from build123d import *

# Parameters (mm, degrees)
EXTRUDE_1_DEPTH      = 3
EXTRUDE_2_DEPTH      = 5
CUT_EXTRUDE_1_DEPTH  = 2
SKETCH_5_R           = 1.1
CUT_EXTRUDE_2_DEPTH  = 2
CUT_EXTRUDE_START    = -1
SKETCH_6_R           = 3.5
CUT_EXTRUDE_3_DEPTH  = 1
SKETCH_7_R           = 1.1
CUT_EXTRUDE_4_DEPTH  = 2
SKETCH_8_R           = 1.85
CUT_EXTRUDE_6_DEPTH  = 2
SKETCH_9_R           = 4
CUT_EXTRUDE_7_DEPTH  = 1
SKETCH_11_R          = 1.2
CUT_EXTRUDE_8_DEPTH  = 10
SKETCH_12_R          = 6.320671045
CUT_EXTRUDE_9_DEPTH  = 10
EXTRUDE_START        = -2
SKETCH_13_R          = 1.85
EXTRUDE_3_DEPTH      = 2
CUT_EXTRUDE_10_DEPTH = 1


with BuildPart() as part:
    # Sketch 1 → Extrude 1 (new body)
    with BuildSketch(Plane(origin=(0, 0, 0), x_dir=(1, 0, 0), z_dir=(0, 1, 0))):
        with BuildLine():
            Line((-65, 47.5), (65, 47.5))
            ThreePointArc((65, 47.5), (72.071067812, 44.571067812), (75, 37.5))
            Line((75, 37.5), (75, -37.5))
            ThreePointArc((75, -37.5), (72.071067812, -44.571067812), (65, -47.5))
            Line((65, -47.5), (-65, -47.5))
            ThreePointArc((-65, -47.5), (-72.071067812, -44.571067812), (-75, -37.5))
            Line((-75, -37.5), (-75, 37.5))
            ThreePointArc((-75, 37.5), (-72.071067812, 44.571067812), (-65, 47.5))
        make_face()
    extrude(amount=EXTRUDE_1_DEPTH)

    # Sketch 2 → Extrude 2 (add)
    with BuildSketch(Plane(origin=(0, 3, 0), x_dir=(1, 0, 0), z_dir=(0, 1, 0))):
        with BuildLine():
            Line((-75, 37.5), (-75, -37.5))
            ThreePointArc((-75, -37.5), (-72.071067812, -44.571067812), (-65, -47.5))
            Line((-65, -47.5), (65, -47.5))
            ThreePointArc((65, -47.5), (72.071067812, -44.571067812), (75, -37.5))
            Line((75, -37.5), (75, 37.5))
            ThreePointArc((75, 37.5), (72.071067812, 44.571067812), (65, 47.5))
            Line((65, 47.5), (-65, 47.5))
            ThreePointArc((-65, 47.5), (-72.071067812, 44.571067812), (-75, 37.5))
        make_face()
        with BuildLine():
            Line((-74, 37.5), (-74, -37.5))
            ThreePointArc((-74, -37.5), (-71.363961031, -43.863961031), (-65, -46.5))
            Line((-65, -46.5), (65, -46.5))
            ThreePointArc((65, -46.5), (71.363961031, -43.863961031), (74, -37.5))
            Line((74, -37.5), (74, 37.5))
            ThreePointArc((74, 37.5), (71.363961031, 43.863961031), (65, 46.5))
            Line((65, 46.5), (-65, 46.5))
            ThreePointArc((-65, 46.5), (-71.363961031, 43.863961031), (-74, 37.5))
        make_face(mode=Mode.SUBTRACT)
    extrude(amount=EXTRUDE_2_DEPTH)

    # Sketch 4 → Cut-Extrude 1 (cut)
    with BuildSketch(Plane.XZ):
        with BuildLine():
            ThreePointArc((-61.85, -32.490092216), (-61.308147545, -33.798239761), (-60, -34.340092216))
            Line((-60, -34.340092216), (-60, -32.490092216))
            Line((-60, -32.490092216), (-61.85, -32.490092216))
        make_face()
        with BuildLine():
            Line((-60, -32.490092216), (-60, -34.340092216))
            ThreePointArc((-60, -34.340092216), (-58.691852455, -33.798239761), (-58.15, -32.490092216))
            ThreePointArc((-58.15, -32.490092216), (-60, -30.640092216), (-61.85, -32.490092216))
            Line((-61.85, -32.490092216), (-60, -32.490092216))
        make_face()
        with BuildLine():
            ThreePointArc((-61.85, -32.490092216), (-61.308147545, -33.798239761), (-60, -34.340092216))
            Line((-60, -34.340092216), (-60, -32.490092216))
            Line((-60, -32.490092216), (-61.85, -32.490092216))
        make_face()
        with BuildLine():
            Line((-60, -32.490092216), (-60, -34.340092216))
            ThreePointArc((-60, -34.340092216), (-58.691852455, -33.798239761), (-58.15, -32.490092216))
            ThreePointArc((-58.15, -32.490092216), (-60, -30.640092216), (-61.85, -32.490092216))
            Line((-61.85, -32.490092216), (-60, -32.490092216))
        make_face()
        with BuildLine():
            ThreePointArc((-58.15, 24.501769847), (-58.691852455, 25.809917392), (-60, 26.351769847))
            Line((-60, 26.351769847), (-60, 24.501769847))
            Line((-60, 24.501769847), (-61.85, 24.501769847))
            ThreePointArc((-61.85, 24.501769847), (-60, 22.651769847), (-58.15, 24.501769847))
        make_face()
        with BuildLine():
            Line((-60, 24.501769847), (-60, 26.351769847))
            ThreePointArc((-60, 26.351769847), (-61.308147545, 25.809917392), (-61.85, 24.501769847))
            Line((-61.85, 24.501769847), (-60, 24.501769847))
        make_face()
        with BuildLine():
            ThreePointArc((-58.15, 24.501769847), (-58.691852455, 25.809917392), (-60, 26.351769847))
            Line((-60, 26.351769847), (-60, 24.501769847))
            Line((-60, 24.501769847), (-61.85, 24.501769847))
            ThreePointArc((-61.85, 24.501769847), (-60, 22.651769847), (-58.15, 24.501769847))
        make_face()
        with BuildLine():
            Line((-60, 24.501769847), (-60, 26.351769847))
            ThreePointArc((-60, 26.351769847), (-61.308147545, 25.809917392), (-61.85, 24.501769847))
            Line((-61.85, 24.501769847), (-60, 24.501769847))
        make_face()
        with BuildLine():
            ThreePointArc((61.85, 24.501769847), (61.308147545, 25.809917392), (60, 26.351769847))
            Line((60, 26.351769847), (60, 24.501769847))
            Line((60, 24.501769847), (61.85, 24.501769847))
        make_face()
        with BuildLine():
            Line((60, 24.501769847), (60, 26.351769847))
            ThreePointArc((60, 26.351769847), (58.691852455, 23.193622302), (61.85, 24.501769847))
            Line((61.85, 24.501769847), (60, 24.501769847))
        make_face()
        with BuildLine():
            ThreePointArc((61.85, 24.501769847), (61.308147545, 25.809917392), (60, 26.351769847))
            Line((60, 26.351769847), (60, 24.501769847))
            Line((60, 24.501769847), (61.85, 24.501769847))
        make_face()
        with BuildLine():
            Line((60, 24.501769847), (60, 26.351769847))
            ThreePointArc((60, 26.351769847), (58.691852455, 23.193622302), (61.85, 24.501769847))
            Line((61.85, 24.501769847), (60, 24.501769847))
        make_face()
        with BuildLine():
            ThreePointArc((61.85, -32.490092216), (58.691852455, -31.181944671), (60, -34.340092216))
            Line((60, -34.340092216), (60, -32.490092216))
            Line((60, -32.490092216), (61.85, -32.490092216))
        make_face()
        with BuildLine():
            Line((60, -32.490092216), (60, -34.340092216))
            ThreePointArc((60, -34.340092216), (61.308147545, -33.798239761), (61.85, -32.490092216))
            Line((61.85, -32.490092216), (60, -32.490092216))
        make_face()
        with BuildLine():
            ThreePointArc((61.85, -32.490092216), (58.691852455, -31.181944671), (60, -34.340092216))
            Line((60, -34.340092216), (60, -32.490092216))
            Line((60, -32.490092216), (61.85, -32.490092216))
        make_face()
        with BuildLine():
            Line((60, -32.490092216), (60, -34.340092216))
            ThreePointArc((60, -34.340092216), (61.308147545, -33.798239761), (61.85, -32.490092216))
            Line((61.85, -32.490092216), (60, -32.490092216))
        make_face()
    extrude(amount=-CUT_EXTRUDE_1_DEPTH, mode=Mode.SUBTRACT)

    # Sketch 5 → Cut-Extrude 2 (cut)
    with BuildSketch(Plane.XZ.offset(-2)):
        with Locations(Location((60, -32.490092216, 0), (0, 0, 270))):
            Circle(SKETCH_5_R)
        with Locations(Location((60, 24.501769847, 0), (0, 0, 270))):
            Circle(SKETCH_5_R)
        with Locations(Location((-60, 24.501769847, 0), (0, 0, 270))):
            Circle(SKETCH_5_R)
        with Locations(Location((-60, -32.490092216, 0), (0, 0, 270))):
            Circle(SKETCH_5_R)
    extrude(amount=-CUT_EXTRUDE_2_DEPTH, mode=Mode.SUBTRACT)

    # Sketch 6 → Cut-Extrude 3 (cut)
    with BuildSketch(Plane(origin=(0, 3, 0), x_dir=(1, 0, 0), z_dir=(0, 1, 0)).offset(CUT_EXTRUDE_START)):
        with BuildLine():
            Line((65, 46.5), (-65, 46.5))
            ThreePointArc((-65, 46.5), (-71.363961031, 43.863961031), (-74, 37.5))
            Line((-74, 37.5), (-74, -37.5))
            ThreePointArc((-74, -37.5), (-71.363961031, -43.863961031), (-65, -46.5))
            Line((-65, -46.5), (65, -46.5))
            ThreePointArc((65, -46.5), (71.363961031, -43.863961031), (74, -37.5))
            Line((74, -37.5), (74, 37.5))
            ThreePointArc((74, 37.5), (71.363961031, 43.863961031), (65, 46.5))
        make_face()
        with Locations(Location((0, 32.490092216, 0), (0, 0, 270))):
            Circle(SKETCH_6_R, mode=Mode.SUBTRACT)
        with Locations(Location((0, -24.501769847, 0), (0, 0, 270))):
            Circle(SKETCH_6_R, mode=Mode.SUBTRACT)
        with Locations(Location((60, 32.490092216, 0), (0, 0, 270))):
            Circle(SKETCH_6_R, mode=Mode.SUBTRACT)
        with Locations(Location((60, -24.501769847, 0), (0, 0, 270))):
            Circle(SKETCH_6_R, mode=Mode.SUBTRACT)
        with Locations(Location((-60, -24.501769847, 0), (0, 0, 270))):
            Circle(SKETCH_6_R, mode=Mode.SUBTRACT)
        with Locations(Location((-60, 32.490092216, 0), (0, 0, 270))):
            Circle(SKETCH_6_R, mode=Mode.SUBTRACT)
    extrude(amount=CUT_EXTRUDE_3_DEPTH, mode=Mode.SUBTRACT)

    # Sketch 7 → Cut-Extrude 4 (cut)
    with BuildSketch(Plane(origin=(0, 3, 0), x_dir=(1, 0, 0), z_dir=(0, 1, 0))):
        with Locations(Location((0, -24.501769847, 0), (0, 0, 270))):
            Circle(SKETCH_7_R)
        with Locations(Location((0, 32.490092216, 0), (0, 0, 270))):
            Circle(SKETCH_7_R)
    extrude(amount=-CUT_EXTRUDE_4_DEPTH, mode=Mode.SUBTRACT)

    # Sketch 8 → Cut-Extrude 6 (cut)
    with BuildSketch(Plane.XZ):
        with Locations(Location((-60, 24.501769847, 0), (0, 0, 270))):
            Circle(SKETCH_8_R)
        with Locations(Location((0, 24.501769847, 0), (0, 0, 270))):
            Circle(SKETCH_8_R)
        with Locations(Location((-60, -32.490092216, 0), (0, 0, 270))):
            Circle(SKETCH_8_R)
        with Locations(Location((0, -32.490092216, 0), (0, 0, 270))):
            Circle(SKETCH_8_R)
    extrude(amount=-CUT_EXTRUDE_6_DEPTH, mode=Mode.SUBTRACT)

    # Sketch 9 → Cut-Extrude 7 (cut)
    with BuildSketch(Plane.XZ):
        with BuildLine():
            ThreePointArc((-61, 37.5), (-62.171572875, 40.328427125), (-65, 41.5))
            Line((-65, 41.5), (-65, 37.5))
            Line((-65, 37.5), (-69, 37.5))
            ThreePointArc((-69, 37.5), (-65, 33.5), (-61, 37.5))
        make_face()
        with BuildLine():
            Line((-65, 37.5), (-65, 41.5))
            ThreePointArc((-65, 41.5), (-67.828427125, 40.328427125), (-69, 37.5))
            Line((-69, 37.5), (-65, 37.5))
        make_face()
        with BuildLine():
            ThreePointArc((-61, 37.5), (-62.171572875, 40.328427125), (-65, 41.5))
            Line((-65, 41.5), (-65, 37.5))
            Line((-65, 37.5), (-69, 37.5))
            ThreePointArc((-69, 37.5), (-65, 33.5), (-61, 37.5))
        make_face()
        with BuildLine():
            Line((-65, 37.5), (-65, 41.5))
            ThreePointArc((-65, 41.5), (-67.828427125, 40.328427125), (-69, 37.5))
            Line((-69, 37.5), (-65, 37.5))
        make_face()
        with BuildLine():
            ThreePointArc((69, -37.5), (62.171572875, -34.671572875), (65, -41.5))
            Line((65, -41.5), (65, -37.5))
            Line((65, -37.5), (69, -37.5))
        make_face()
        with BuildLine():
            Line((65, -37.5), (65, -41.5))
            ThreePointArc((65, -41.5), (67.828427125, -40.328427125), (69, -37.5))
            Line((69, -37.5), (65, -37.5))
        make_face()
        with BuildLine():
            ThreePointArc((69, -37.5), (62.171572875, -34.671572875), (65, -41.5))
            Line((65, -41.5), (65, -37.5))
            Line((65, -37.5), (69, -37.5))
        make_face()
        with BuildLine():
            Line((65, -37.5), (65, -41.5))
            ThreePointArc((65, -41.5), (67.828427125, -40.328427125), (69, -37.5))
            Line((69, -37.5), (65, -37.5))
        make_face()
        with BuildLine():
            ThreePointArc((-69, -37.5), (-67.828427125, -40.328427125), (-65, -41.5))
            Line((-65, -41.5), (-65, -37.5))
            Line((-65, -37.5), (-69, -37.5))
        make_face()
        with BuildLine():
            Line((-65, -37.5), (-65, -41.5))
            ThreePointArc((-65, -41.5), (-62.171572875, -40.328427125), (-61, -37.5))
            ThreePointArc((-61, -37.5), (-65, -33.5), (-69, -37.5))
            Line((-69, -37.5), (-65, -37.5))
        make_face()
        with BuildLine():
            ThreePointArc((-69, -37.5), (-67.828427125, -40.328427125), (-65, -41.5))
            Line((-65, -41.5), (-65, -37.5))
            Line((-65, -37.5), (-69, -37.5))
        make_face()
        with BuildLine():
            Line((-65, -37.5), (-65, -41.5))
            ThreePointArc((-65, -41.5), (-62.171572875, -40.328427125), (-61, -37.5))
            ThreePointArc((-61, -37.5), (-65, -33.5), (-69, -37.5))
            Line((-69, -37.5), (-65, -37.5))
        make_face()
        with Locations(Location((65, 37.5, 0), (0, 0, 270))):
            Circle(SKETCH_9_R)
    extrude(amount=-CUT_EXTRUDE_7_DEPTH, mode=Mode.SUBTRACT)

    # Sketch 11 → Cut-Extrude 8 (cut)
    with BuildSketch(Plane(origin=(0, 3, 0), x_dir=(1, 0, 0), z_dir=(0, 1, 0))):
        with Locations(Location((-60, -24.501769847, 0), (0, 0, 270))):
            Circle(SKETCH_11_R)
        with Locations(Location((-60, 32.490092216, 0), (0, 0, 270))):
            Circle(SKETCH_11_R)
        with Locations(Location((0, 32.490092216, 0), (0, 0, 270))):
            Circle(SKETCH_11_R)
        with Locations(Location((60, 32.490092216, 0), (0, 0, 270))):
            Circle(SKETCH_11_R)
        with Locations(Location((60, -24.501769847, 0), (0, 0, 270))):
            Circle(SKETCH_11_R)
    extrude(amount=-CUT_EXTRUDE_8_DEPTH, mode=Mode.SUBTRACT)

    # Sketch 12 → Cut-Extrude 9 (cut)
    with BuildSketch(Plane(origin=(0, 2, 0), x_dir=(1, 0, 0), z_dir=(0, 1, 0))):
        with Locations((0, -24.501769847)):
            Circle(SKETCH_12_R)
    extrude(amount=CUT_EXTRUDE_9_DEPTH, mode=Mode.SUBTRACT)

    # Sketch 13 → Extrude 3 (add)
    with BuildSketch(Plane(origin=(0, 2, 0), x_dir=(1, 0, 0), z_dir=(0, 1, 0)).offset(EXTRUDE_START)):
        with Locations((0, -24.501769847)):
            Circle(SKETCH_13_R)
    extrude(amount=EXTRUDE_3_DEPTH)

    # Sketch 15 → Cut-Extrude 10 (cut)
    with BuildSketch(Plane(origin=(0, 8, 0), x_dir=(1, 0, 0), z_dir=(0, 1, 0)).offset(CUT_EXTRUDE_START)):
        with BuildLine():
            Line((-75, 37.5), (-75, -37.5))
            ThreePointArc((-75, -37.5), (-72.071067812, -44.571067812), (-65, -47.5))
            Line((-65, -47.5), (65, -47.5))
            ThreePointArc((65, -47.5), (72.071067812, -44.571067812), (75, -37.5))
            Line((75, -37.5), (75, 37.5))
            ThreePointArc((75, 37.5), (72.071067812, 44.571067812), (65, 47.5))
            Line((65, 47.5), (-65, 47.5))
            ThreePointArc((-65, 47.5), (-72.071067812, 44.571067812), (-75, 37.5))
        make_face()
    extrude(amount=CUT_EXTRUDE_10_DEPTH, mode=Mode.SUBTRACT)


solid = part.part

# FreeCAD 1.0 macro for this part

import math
import FreeCAD as App
import Part
import Sketcher
from FreeCAD import Vector
Q = App.Units.Quantity

doc = App.newDocument("Part")
params = doc.addObject("Spreadsheet::Sheet", "Params")
for row, (alias, value) in enumerate([
    ("sketch1_radius", "10 mm"),
    ("sketch1_width", "130 mm"),
    ("sketch1_height", "75 mm"),
    ("pad1_length", "3 mm"),
    ("sketch2_radius", "10 mm"),
    ("sketch2_radius2", "9 mm"),
    ("sketch2_width", "130 mm"),
    ("sketch2_height", "75 mm"),
    ("pad2_length", "5 mm"),
    ("sketch3_radius", "1.85 mm"),
    ("pocket1_length", "2 mm"),
    ("sketch4_diameter", "2.2 mm"),
    ("pocket2_length", "2 mm"),
    ("sketch5_diameter", "7 mm"),
    ("sketch5_radius", "9 mm"),
    ("sketch5_width", "130 mm"),
    ("sketch5_height", "75 mm"),
    ("pocket3_length", "1 mm"),
    ("sketch6_diameter", "2.2 mm"),
    ("pocket4_length", "2 mm"),
    ("sketch7_diameter", "3.7 mm"),
    ("pocket5_length", "2 mm"),
    ("sketch8_diameter", "8 mm"),
    ("pocket6_length", "1 mm"),
    ("sketch9_diameter", "2.4 mm"),
    ("pocket7_length", "10 mm"),
    ("pocket8_length", "10 mm"),
    ("sketch11_diameter", "3.7 mm"),
    ("pad3_length", "2 mm"),
    ("sketch12_radius", "10 mm"),
    ("sketch12_width", "130 mm"),
    ("sketch12_height", "75 mm"),
    ("pocket9_length", "1 mm"),
], start=1):
    params.set(f"A{row}", alias)
    params.set(f"B{row}", "=" + value)
    params.setAlias(f"B{row}", alias)

body = doc.addObject("PartDesign::Body", "Body")

# Sketch on XZ plane
sketch1 = body.newObject("Sketcher::SketchObject", "Sketch")
sketch1.AttachmentSupport = (doc.getObject("XZ_Plane"), [""])
sketch1.MapMode = "FlatFace"
sketch1.addGeometry(Part.LineSegment(Vector(65, -47.5, 0), Vector(-65, -47.5, 0)), False)
sketch1.addGeometry(Part.ArcOfCircle(Part.Circle(Vector(-65, -37.5, 0), Vector(0, 0, 1), 10), math.radians(180), math.radians(270)), False)
sketch1.addGeometry(Part.LineSegment(Vector(-75, -37.5, 0), Vector(-75, 37.5, 0)), False)
sketch1.addGeometry(Part.ArcOfCircle(Part.Circle(Vector(-65, 37.5, 0), Vector(0, 0, 1), 10), math.radians(90), math.radians(180)), False)
sketch1.addGeometry(Part.LineSegment(Vector(-65, 47.5, 0), Vector(65, 47.5, 0)), False)
sketch1.addGeometry(Part.ArcOfCircle(Part.Circle(Vector(65, 37.5, 0), Vector(0, 0, 1), 10), math.radians(0), math.radians(90)), False)
sketch1.addGeometry(Part.LineSegment(Vector(75, 37.5, 0), Vector(75, -37.5, 0)), False)
sketch1.addGeometry(Part.ArcOfCircle(Part.Circle(Vector(65, -37.5, 0), Vector(0, 0, 1), 10), math.radians(-90), math.radians(0)), False)
sketch1.addConstraint(Sketcher.Constraint("Tangent", 0, 2, 1, 2))
sketch1.addConstraint(Sketcher.Constraint("Tangent", 1, 1, 2, 1))
sketch1.addConstraint(Sketcher.Constraint("Tangent", 2, 2, 3, 2))
sketch1.addConstraint(Sketcher.Constraint("Tangent", 3, 1, 4, 1))
sketch1.addConstraint(Sketcher.Constraint("Tangent", 4, 2, 5, 2))
sketch1.addConstraint(Sketcher.Constraint("Tangent", 5, 1, 6, 1))
sketch1.addConstraint(Sketcher.Constraint("Tangent", 6, 2, 7, 2))
sketch1.addConstraint(Sketcher.Constraint("Tangent", 7, 1, 0, 1))
sketch1.addConstraint(Sketcher.Constraint("Horizontal", 0))
sketch1.addConstraint(Sketcher.Constraint("Vertical", 2))
sketch1.addConstraint(Sketcher.Constraint("Horizontal", 4))
sketch1.addConstraint(Sketcher.Constraint("Vertical", 6))
sketch1.addConstraint(Sketcher.Constraint("Equal", 1, 3))
sketch1.addConstraint(Sketcher.Constraint("Equal", 3, 5))
sketch1.addConstraint(Sketcher.Constraint("Equal", 5, 7))
sketch1.addConstraint(Sketcher.Constraint("Symmetric", 1, 3, 5, 3, -1, 1))
sketch1.addConstraint(Sketcher.Constraint("Radius", 1, Q("10 mm")))
sketch1.addConstraint(Sketcher.Constraint("DistanceX", 0, 2, 0, 1, Q("130 mm")))
sketch1.addConstraint(Sketcher.Constraint("DistanceY", 2, 1, 2, 2, Q("75 mm")))
sketch1.setExpression("Constraints[16]", "Params.sketch1_radius")
sketch1.setExpression("Constraints[17]", "Params.sketch1_width")
sketch1.setExpression("Constraints[18]", "Params.sketch1_height")
pad1 = body.newObject("PartDesign::Pad", "Pad")
pad1.Profile = sketch1
pad1.setExpression("Length", "Params.pad1_length")
pad1.Reversed = True

# Sketch on XZ plane
sketch2 = body.newObject("Sketcher::SketchObject", "Sketch001")
sketch2.AttachmentSupport = (doc.getObject("XZ_Plane"), [""])
sketch2.MapMode = "FlatFace"
sketch2.AttachmentOffset = App.Placement(Vector(0, 0, -3), App.Rotation())
sketch2.addGeometry(Part.LineSegment(Vector(-75, -37.5, 0), Vector(-75, 37.5, 0)), False)
sketch2.addGeometry(Part.ArcOfCircle(Part.Circle(Vector(-65, 37.5, 0), Vector(0, 0, 1), 10), math.radians(90), math.radians(180)), False)
sketch2.addGeometry(Part.LineSegment(Vector(-65, 47.5, 0), Vector(65, 47.5, 0)), False)
sketch2.addGeometry(Part.ArcOfCircle(Part.Circle(Vector(65, 37.5, 0), Vector(0, 0, 1), 10), math.radians(0), math.radians(90)), False)
sketch2.addGeometry(Part.LineSegment(Vector(75, 37.5, 0), Vector(75, -37.5, 0)), False)
sketch2.addGeometry(Part.ArcOfCircle(Part.Circle(Vector(65, -37.5, 0), Vector(0, 0, 1), 10), math.radians(-90), math.radians(0)), False)
sketch2.addGeometry(Part.LineSegment(Vector(65, -47.5, 0), Vector(-65, -47.5, 0)), False)
sketch2.addGeometry(Part.ArcOfCircle(Part.Circle(Vector(-65, -37.5, 0), Vector(0, 0, 1), 10), math.radians(180), math.radians(270)), False)
sketch2.addGeometry(Part.LineSegment(Vector(-74, 37.5, 0), Vector(-74, -37.5, 0)), False)
sketch2.addGeometry(Part.ArcOfCircle(Part.Circle(Vector(-65, -37.5, 0), Vector(0, 0, 1), 9), math.radians(180), math.radians(270)), False)
sketch2.addGeometry(Part.LineSegment(Vector(-65, -46.5, 0), Vector(65, -46.5, 0)), False)
sketch2.addGeometry(Part.ArcOfCircle(Part.Circle(Vector(65, -37.5, 0), Vector(0, 0, 1), 9), math.radians(-90), math.radians(0)), False)
sketch2.addGeometry(Part.LineSegment(Vector(74, -37.5, 0), Vector(74, 37.5, 0)), False)
sketch2.addGeometry(Part.ArcOfCircle(Part.Circle(Vector(65, 37.5, 0), Vector(0, 0, 1), 9), math.radians(0), math.radians(90)), False)
sketch2.addGeometry(Part.LineSegment(Vector(65, 46.5, 0), Vector(-65, 46.5, 0)), False)
sketch2.addGeometry(Part.ArcOfCircle(Part.Circle(Vector(-65, 37.5, 0), Vector(0, 0, 1), 9), math.radians(90), math.radians(180)), False)
sketch2.addConstraint(Sketcher.Constraint("Tangent", 0, 2, 1, 2))
sketch2.addConstraint(Sketcher.Constraint("Tangent", 1, 1, 2, 1))
sketch2.addConstraint(Sketcher.Constraint("Tangent", 2, 2, 3, 2))
sketch2.addConstraint(Sketcher.Constraint("Tangent", 3, 1, 4, 1))
sketch2.addConstraint(Sketcher.Constraint("Tangent", 4, 2, 5, 2))
sketch2.addConstraint(Sketcher.Constraint("Tangent", 5, 1, 6, 1))
sketch2.addConstraint(Sketcher.Constraint("Tangent", 6, 2, 7, 2))
sketch2.addConstraint(Sketcher.Constraint("Tangent", 7, 1, 0, 1))
sketch2.addConstraint(Sketcher.Constraint("Tangent", 8, 2, 9, 1))
sketch2.addConstraint(Sketcher.Constraint("Tangent", 9, 2, 10, 1))
sketch2.addConstraint(Sketcher.Constraint("Tangent", 10, 2, 11, 1))
sketch2.addConstraint(Sketcher.Constraint("Tangent", 11, 2, 12, 1))
sketch2.addConstraint(Sketcher.Constraint("Tangent", 12, 2, 13, 1))
sketch2.addConstraint(Sketcher.Constraint("Tangent", 13, 2, 14, 1))
sketch2.addConstraint(Sketcher.Constraint("Tangent", 14, 2, 15, 1))
sketch2.addConstraint(Sketcher.Constraint("Tangent", 15, 2, 8, 1))
sketch2.addConstraint(Sketcher.Constraint("Vertical", 0))
sketch2.addConstraint(Sketcher.Constraint("Horizontal", 2))
sketch2.addConstraint(Sketcher.Constraint("Vertical", 4))
sketch2.addConstraint(Sketcher.Constraint("Horizontal", 6))
sketch2.addConstraint(Sketcher.Constraint("Vertical", 8))
sketch2.addConstraint(Sketcher.Constraint("Horizontal", 10))
sketch2.addConstraint(Sketcher.Constraint("Vertical", 12))
sketch2.addConstraint(Sketcher.Constraint("Horizontal", 14))
sketch2.addConstraint(Sketcher.Constraint("Coincident", 9, 3, 7, 3))
sketch2.addConstraint(Sketcher.Constraint("Coincident", 11, 3, 5, 3))
sketch2.addConstraint(Sketcher.Constraint("Coincident", 13, 3, 3, 3))
sketch2.addConstraint(Sketcher.Constraint("Equal", 1, 3))
sketch2.addConstraint(Sketcher.Constraint("Equal", 3, 5))
sketch2.addConstraint(Sketcher.Constraint("Equal", 5, 7))
sketch2.addConstraint(Sketcher.Constraint("Equal", 13, 15))
sketch2.addConstraint(Sketcher.Constraint("Symmetric", 1, 3, 5, 3, -1, 1))
sketch2.addConstraint(Sketcher.Constraint("Radius", 1, Q("10 mm")))
sketch2.addConstraint(Sketcher.Constraint("Radius", 9, Q("9 mm")))
sketch2.addConstraint(Sketcher.Constraint("DistanceX", 2, 1, 2, 2, Q("130 mm")))
sketch2.addConstraint(Sketcher.Constraint("DistanceY", 0, 1, 0, 2, Q("75 mm")))
sketch2.setExpression("Constraints[32]", "Params.sketch2_radius")
sketch2.setExpression("Constraints[33]", "Params.sketch2_radius2")
sketch2.setExpression("Constraints[34]", "Params.sketch2_width")
sketch2.setExpression("Constraints[35]", "Params.sketch2_height")
pad2 = body.newObject("PartDesign::Pad", "Pad001")
pad2.Profile = sketch2
pad2.setExpression("Length", "Params.pad2_length")
pad2.Reversed = True

# Sketch on XZ plane
sketch3 = body.newObject("Sketcher::SketchObject", "Sketch002")
sketch3.AttachmentSupport = (doc.getObject("XZ_Plane"), [""])
sketch3.MapMode = "FlatFace"
sketch3.addGeometry(Part.ArcOfCircle(Part.Circle(Vector(-60, -32.490092, 0), Vector(0, 0, 1), 1.85), math.radians(-180), math.radians(-90)), False)
sketch3.addGeometry(Part.ArcOfCircle(Part.Circle(Vector(-60, -32.490092, 0), Vector(0, 0, 1), 1.85), math.radians(-90), math.radians(0)), False)
sketch3.addGeometry(Part.ArcOfCircle(Part.Circle(Vector(-60, -32.490092, 0), Vector(0, 0, 1), 1.85), math.radians(0), math.radians(180)), False)
sketch3.addGeometry(Part.ArcOfCircle(Part.Circle(Vector(-60, 24.50177, 0), Vector(0, 0, 1), 1.85), math.radians(0), math.radians(90)), False)
sketch3.addGeometry(Part.ArcOfCircle(Part.Circle(Vector(-60, 24.50177, 0), Vector(0, 0, 1), 1.85), math.radians(90), math.radians(180)), False)
sketch3.addGeometry(Part.ArcOfCircle(Part.Circle(Vector(-60, 24.50177, 0), Vector(0, 0, 1), 1.85), math.radians(180), math.radians(360)), False)
sketch3.addGeometry(Part.ArcOfCircle(Part.Circle(Vector(60, 24.50177, 0), Vector(0, 0, 1), 1.85), math.radians(0), math.radians(90)), False)
sketch3.addGeometry(Part.ArcOfCircle(Part.Circle(Vector(60, 24.50177, 0), Vector(0, 0, 1), 1.85), math.radians(90), math.radians(360)), False)
sketch3.addGeometry(Part.ArcOfCircle(Part.Circle(Vector(60, -32.490092, 0), Vector(0, 0, 1), 1.85), math.radians(0), math.radians(270)), False)
sketch3.addGeometry(Part.ArcOfCircle(Part.Circle(Vector(60, -32.490092, 0), Vector(0, 0, 1), 1.85), math.radians(-90), math.radians(0)), False)
sketch3.addConstraint(Sketcher.Constraint("Tangent", 0, 2, 1, 1))
sketch3.addConstraint(Sketcher.Constraint("Tangent", 1, 2, 2, 1))
sketch3.addConstraint(Sketcher.Constraint("Tangent", 2, 2, 0, 1))
sketch3.addConstraint(Sketcher.Constraint("Tangent", 3, 2, 4, 1))
sketch3.addConstraint(Sketcher.Constraint("Tangent", 4, 2, 5, 1))
sketch3.addConstraint(Sketcher.Constraint("Tangent", 5, 2, 3, 1))
sketch3.addConstraint(Sketcher.Constraint("Tangent", 6, 1, 7, 2))
sketch3.addConstraint(Sketcher.Constraint("Coincident", 7, 1, 6, 2))
sketch3.addConstraint(Sketcher.Constraint("Tangent", 8, 1, 9, 2))
sketch3.addConstraint(Sketcher.Constraint("Coincident", 9, 1, 8, 2))
sketch3.addConstraint(Sketcher.Constraint("Equal", 2, 3))
sketch3.addConstraint(Sketcher.Constraint("Equal", 5, 6))
sketch3.addConstraint(Sketcher.Constraint("Equal", 7, 8))
sketch3.addConstraint(Sketcher.Constraint("Symmetric", 3, 3, 6, 3, -2))
sketch3.addConstraint(Sketcher.Constraint("Symmetric", 0, 3, 8, 3, -2))
sketch3.addConstraint(Sketcher.Constraint("Horizontal", 9, 3, 1, 2))
sketch3.addConstraint(Sketcher.Constraint("Horizontal", 1, 2, 2, 2))
sketch3.addConstraint(Sketcher.Constraint("Horizontal", 7, 3, 4, 2))
sketch3.addConstraint(Sketcher.Constraint("Horizontal", 4, 2, 5, 2))
sketch3.addConstraint(Sketcher.Constraint("Horizontal", 5, 2, 6, 1))
sketch3.addConstraint(Sketcher.Constraint("Horizontal", 2, 2, 8, 1))
sketch3.addConstraint(Sketcher.Constraint("Vertical", 2, 3, 3, 3))
sketch3.addConstraint(Sketcher.Constraint("Vertical", 5, 3, 0, 2))
sketch3.addConstraint(Sketcher.Constraint("Vertical", 0, 2, 3, 2))
sketch3.addConstraint(Sketcher.Constraint("Vertical", 9, 3, 7, 1))
sketch3.addConstraint(Sketcher.Constraint("Vertical", 7, 1, 9, 1))
sketch3.addConstraint(Sketcher.Constraint("Radius", 0, Q("1.85 mm")))
sketch3.addConstraint(Sketcher.Constraint("DistanceX", 0, 3, -1, 1, Q("60 mm")))
sketch3.addConstraint(Sketcher.Constraint("DistanceY", -1, 1, 3, 3, Q("24.50177 mm")))
sketch3.addConstraint(Sketcher.Constraint("DistanceY", 0, 3, -1, 1, Q("32.490092 mm")))
sketch3.setExpression("Constraints[26]", "Params.sketch3_radius")
pocket1 = body.newObject("PartDesign::Pocket", "Pocket")
pocket1.Profile = sketch3
pocket1.setExpression("Length", "Params.pocket1_length")

# Sketch on XZ plane
sketch4 = body.newObject("Sketcher::SketchObject", "Sketch003")
sketch4.AttachmentSupport = (doc.getObject("XZ_Plane"), [""])
sketch4.MapMode = "FlatFace"
sketch4.AttachmentOffset = App.Placement(Vector(0, 0, -2), App.Rotation())
sketch4.addGeometry(Part.Circle(Vector(60, -32.490092, 0), Vector(0, 0, 1), 1.1), False)
sketch4.addGeometry(Part.Circle(Vector(60, 24.50177, 0), Vector(0, 0, 1), 1.1), False)
sketch4.addGeometry(Part.Circle(Vector(-60, 24.50177, 0), Vector(0, 0, 1), 1.1), False)
sketch4.addGeometry(Part.Circle(Vector(-60, -32.490092, 0), Vector(0, 0, 1), 1.1), False)
sketch4.addConstraint(Sketcher.Constraint("Equal", 0, 1))
sketch4.addConstraint(Sketcher.Constraint("Equal", 1, 2))
sketch4.addConstraint(Sketcher.Constraint("Equal", 2, 3))
sketch4.addConstraint(Sketcher.Constraint("Symmetric", 1, 3, 2, 3, -2))
sketch4.addConstraint(Sketcher.Constraint("Symmetric", 0, 3, 3, 3, -2))
sketch4.addConstraint(Sketcher.Constraint("Vertical", 0, 3, 1, 3))
sketch4.addConstraint(Sketcher.Constraint("Diameter", 0, Q("2.2 mm")))
sketch4.addConstraint(Sketcher.Constraint("DistanceX", -1, 1, 0, 3, Q("60 mm")))
sketch4.addConstraint(Sketcher.Constraint("DistanceY", -1, 1, 1, 3, Q("24.50177 mm")))
sketch4.addConstraint(Sketcher.Constraint("DistanceY", 0, 3, -1, 1, Q("32.490092 mm")))
sketch4.setExpression("Constraints[6]", "Params.sketch4_diameter")
pocket2 = body.newObject("PartDesign::Pocket", "Pocket001")
pocket2.Profile = sketch4
pocket2.setExpression("Length", "Params.pocket2_length")

# Sketch on XZ plane
sketch5 = body.newObject("Sketcher::SketchObject", "Sketch004")
sketch5.AttachmentSupport = (doc.getObject("XZ_Plane"), [""])
sketch5.MapMode = "FlatFace"
sketch5.AttachmentOffset = App.Placement(Vector(0, 0, -2), App.Rotation())
sketch5.addGeometry(Part.LineSegment(Vector(65, -46.5, 0), Vector(-65, -46.5, 0)), False)
sketch5.addGeometry(Part.ArcOfCircle(Part.Circle(Vector(-65, -37.5, 0), Vector(0, 0, 1), 9), math.radians(180), math.radians(270)), False)
sketch5.addGeometry(Part.LineSegment(Vector(-74, -37.5, 0), Vector(-74, 37.5, 0)), False)
sketch5.addGeometry(Part.ArcOfCircle(Part.Circle(Vector(-65, 37.5, 0), Vector(0, 0, 1), 9), math.radians(90), math.radians(180)), False)
sketch5.addGeometry(Part.LineSegment(Vector(-65, 46.5, 0), Vector(65, 46.5, 0)), False)
sketch5.addGeometry(Part.ArcOfCircle(Part.Circle(Vector(65, 37.5, 0), Vector(0, 0, 1), 9), math.radians(0), math.radians(90)), False)
sketch5.addGeometry(Part.LineSegment(Vector(74, 37.5, 0), Vector(74, -37.5, 0)), False)
sketch5.addGeometry(Part.ArcOfCircle(Part.Circle(Vector(65, -37.5, 0), Vector(0, 0, 1), 9), math.radians(-90), math.radians(0)), False)
sketch5.addGeometry(Part.Circle(Vector(-60, 24.50177, 0), Vector(0, 0, 1), 3.5), False)
sketch5.addGeometry(Part.Circle(Vector(0, 24.50177, 0), Vector(0, 0, 1), 3.5), False)
sketch5.addGeometry(Part.Circle(Vector(60, 24.50177, 0), Vector(0, 0, 1), 3.5), False)
sketch5.addGeometry(Part.Circle(Vector(-60, -32.490092, 0), Vector(0, 0, 1), 3.5), False)
sketch5.addGeometry(Part.Circle(Vector(0, -32.490092, 0), Vector(0, 0, 1), 3.5), False)
sketch5.addGeometry(Part.Circle(Vector(60, -32.490092, 0), Vector(0, 0, 1), 3.5), False)
sketch5.addConstraint(Sketcher.Constraint("Tangent", 0, 2, 1, 2))
sketch5.addConstraint(Sketcher.Constraint("Tangent", 1, 1, 2, 1))
sketch5.addConstraint(Sketcher.Constraint("Tangent", 2, 2, 3, 2))
sketch5.addConstraint(Sketcher.Constraint("Tangent", 3, 1, 4, 1))
sketch5.addConstraint(Sketcher.Constraint("Tangent", 4, 2, 5, 2))
sketch5.addConstraint(Sketcher.Constraint("Tangent", 5, 1, 6, 1))
sketch5.addConstraint(Sketcher.Constraint("Tangent", 6, 2, 7, 2))
sketch5.addConstraint(Sketcher.Constraint("Tangent", 7, 1, 0, 1))
sketch5.addConstraint(Sketcher.Constraint("Horizontal", 0))
sketch5.addConstraint(Sketcher.Constraint("Vertical", 2))
sketch5.addConstraint(Sketcher.Constraint("Horizontal", 4))
sketch5.addConstraint(Sketcher.Constraint("Vertical", 6))
sketch5.addConstraint(Sketcher.Constraint("Equal", 1, 3))
sketch5.addConstraint(Sketcher.Constraint("Equal", 3, 5))
sketch5.addConstraint(Sketcher.Constraint("Equal", 5, 7))
sketch5.addConstraint(Sketcher.Constraint("Equal", 8, 9))
sketch5.addConstraint(Sketcher.Constraint("Equal", 9, 10))
sketch5.addConstraint(Sketcher.Constraint("Equal", 10, 11))
sketch5.addConstraint(Sketcher.Constraint("Equal", 11, 12))
sketch5.addConstraint(Sketcher.Constraint("Equal", 12, 13))
sketch5.addConstraint(Sketcher.Constraint("Symmetric", 1, 3, 5, 3, -1, 1))
sketch5.addConstraint(Sketcher.Constraint("Symmetric", 8, 3, 10, 3, -2))
sketch5.addConstraint(Sketcher.Constraint("Symmetric", 11, 3, 13, 3, -2))
sketch5.addConstraint(Sketcher.Constraint("PointOnObject", 9, 3, -2))
sketch5.addConstraint(Sketcher.Constraint("PointOnObject", 12, 3, -2))
sketch5.addConstraint(Sketcher.Constraint("Horizontal", 8, 3, 9, 3))
sketch5.addConstraint(Sketcher.Constraint("Horizontal", 11, 3, 12, 3))
sketch5.addConstraint(Sketcher.Constraint("Vertical", 8, 3, 11, 3))
sketch5.addConstraint(Sketcher.Constraint("Diameter", 8, Q("7 mm")))
sketch5.addConstraint(Sketcher.Constraint("Radius", 1, Q("9 mm")))
sketch5.addConstraint(Sketcher.Constraint("DistanceX", 0, 2, 0, 1, Q("130 mm")))
sketch5.addConstraint(Sketcher.Constraint("DistanceY", 2, 1, 2, 2, Q("75 mm")))
sketch5.addConstraint(Sketcher.Constraint("DistanceX", 8, 3, -1, 1, Q("60 mm")))
sketch5.addConstraint(Sketcher.Constraint("DistanceY", -1, 1, 8, 3, Q("24.50177 mm")))
sketch5.addConstraint(Sketcher.Constraint("DistanceY", 11, 3, -1, 1, Q("32.490092 mm")))
sketch5.setExpression("Constraints[28]", "Params.sketch5_diameter")
sketch5.setExpression("Constraints[29]", "Params.sketch5_radius")
sketch5.setExpression("Constraints[30]", "Params.sketch5_width")
sketch5.setExpression("Constraints[31]", "Params.sketch5_height")
pocket3 = body.newObject("PartDesign::Pocket", "Pocket002")
pocket3.Profile = sketch5
pocket3.setExpression("Length", "Params.pocket3_length")

# Sketch on XZ plane
sketch6 = body.newObject("Sketcher::SketchObject", "Sketch005")
sketch6.AttachmentSupport = (doc.getObject("XZ_Plane"), [""])
sketch6.MapMode = "FlatFace"
sketch6.AttachmentOffset = App.Placement(Vector(0, 0, -3), App.Rotation())
sketch6.addGeometry(Part.Circle(Vector(0, 24.50177, 0), Vector(0, 0, 1), 1.1), False)
sketch6.addGeometry(Part.Circle(Vector(0, -32.490092, 0), Vector(0, 0, 1), 1.1), False)
sketch6.addConstraint(Sketcher.Constraint("Equal", 0, 1))
sketch6.addConstraint(Sketcher.Constraint("PointOnObject", 0, 3, -2))
sketch6.addConstraint(Sketcher.Constraint("PointOnObject", 1, 3, -2))
sketch6.addConstraint(Sketcher.Constraint("Diameter", 0, Q("2.2 mm")))
sketch6.addConstraint(Sketcher.Constraint("DistanceY", -1, 1, 0, 3, Q("24.50177 mm")))
sketch6.addConstraint(Sketcher.Constraint("DistanceY", 1, 3, -1, 1, Q("32.490092 mm")))
sketch6.setExpression("Constraints[3]", "Params.sketch6_diameter")
pocket4 = body.newObject("PartDesign::Pocket", "Pocket003")
pocket4.Profile = sketch6
pocket4.setExpression("Length", "Params.pocket4_length")
pocket4.Reversed = True

# Sketch on XZ plane
sketch7 = body.newObject("Sketcher::SketchObject", "Sketch006")
sketch7.AttachmentSupport = (doc.getObject("XZ_Plane"), [""])
sketch7.MapMode = "FlatFace"
sketch7.addGeometry(Part.Circle(Vector(-60, 24.50177, 0), Vector(0, 0, 1), 1.85), False)
sketch7.addGeometry(Part.Circle(Vector(0, 24.50177, 0), Vector(0, 0, 1), 1.85), False)
sketch7.addGeometry(Part.Circle(Vector(-60, -32.490092, 0), Vector(0, 0, 1), 1.85), False)
sketch7.addGeometry(Part.Circle(Vector(0, -32.490092, 0), Vector(0, 0, 1), 1.85), False)
sketch7.addConstraint(Sketcher.Constraint("Equal", 0, 1))
sketch7.addConstraint(Sketcher.Constraint("Equal", 1, 2))
sketch7.addConstraint(Sketcher.Constraint("Equal", 2, 3))
sketch7.addConstraint(Sketcher.Constraint("PointOnObject", 1, 3, -2))
sketch7.addConstraint(Sketcher.Constraint("PointOnObject", 3, 3, -2))
sketch7.addConstraint(Sketcher.Constraint("Horizontal", 0, 3, 1, 3))
sketch7.addConstraint(Sketcher.Constraint("Horizontal", 2, 3, 3, 3))
sketch7.addConstraint(Sketcher.Constraint("Vertical", 0, 3, 2, 3))
sketch7.addConstraint(Sketcher.Constraint("Diameter", 0, Q("3.7 mm")))
sketch7.addConstraint(Sketcher.Constraint("DistanceX", 0, 3, -1, 1, Q("60 mm")))
sketch7.addConstraint(Sketcher.Constraint("DistanceY", -1, 1, 0, 3, Q("24.50177 mm")))
sketch7.addConstraint(Sketcher.Constraint("DistanceY", 2, 3, -1, 1, Q("32.490092 mm")))
sketch7.setExpression("Constraints[8]", "Params.sketch7_diameter")
pocket5 = body.newObject("PartDesign::Pocket", "Pocket004")
pocket5.Profile = sketch7
pocket5.setExpression("Length", "Params.pocket5_length")

# Sketch on XZ plane
sketch8 = body.newObject("Sketcher::SketchObject", "Sketch007")
sketch8.AttachmentSupport = (doc.getObject("XZ_Plane"), [""])
sketch8.MapMode = "FlatFace"
sketch8.addGeometry(Part.ArcOfCircle(Part.Circle(Vector(-65, 37.5, 0), Vector(0, 0, 1), 4), math.radians(0), math.radians(90)), False)
sketch8.addGeometry(Part.ArcOfCircle(Part.Circle(Vector(-65, 37.5, 0), Vector(0, 0, 1), 4), math.radians(90), math.radians(180)), False)
sketch8.addGeometry(Part.ArcOfCircle(Part.Circle(Vector(-65, 37.5, 0), Vector(0, 0, 1), 4), math.radians(180), math.radians(360)), False)
sketch8.addGeometry(Part.ArcOfCircle(Part.Circle(Vector(65, -37.5, 0), Vector(0, 0, 1), 4), math.radians(0), math.radians(270)), False)
sketch8.addGeometry(Part.ArcOfCircle(Part.Circle(Vector(65, -37.5, 0), Vector(0, 0, 1), 4), math.radians(-90), math.radians(0)), False)
sketch8.addGeometry(Part.ArcOfCircle(Part.Circle(Vector(-65, -37.5, 0), Vector(0, 0, 1), 4), math.radians(180), math.radians(270)), False)
sketch8.addGeometry(Part.ArcOfCircle(Part.Circle(Vector(-65, -37.5, 0), Vector(0, 0, 1), 4), math.radians(-90), math.radians(0)), False)
sketch8.addGeometry(Part.ArcOfCircle(Part.Circle(Vector(-65, -37.5, 0), Vector(0, 0, 1), 4), math.radians(0), math.radians(180)), False)
sketch8.addGeometry(Part.Circle(Vector(65, 37.5, 0), Vector(0, 0, 1), 4), False)
sketch8.addConstraint(Sketcher.Constraint("Tangent", 0, 2, 1, 1))
sketch8.addConstraint(Sketcher.Constraint("Tangent", 1, 2, 2, 1))
sketch8.addConstraint(Sketcher.Constraint("Tangent", 2, 2, 0, 1))
sketch8.addConstraint(Sketcher.Constraint("Tangent", 3, 1, 4, 2))
sketch8.addConstraint(Sketcher.Constraint("Coincident", 4, 1, 3, 2))
sketch8.addConstraint(Sketcher.Constraint("Tangent", 5, 2, 6, 1))
sketch8.addConstraint(Sketcher.Constraint("Tangent", 6, 2, 7, 1))
sketch8.addConstraint(Sketcher.Constraint("Tangent", 7, 2, 5, 1))
sketch8.addConstraint(Sketcher.Constraint("Equal", 2, 3))
sketch8.addConstraint(Sketcher.Constraint("Equal", 4, 5))
sketch8.addConstraint(Sketcher.Constraint("Equal", 7, 8))
sketch8.addConstraint(Sketcher.Constraint("Symmetric", 0, 3, 3, 3, -1, 1))
sketch8.addConstraint(Sketcher.Constraint("Symmetric", 5, 3, 8, 3, -1, 1))
sketch8.addConstraint(Sketcher.Constraint("Symmetric", 3, 3, 5, 3, -2))
sketch8.addConstraint(Sketcher.Constraint("Horizontal", 8, 3, 1, 2))
sketch8.addConstraint(Sketcher.Constraint("Horizontal", 1, 2, 2, 2))
sketch8.addConstraint(Sketcher.Constraint("Horizontal", 7, 3, 3, 1))
sketch8.addConstraint(Sketcher.Constraint("Horizontal", 3, 1, 6, 2))
sketch8.addConstraint(Sketcher.Constraint("Horizontal", 6, 2, 7, 2))
sketch8.addConstraint(Sketcher.Constraint("Vertical", 7, 3, 0, 2))
sketch8.addConstraint(Sketcher.Constraint("Vertical", 8, 3, 4, 1))
sketch8.addConstraint(Sketcher.Constraint("Vertical", 0, 2, 5, 2))
sketch8.addConstraint(Sketcher.Constraint("Diameter", 8, Q("8 mm")))
sketch8.addConstraint(Sketcher.Constraint("DistanceX", 0, 3, -1, 1, Q("65 mm")))
sketch8.addConstraint(Sketcher.Constraint("DistanceY", 3, 3, 0, 3, Q("75 mm")))
sketch8.setExpression("Constraints[22]", "Params.sketch8_diameter")
pocket6 = body.newObject("PartDesign::Pocket", "Pocket005")
pocket6.Profile = sketch8
pocket6.setExpression("Length", "Params.pocket6_length")

# Sketch on XZ plane
sketch9 = body.newObject("Sketcher::SketchObject", "Sketch008")
sketch9.AttachmentSupport = (doc.getObject("XZ_Plane"), [""])
sketch9.MapMode = "FlatFace"
sketch9.AttachmentOffset = App.Placement(Vector(0, 0, -3), App.Rotation())
sketch9.addGeometry(Part.Circle(Vector(-60, 24.50177, 0), Vector(0, 0, 1), 1.2), False)
sketch9.addGeometry(Part.Circle(Vector(-60, -32.490092, 0), Vector(0, 0, 1), 1.2), False)
sketch9.addGeometry(Part.Circle(Vector(0, -32.490092, 0), Vector(0, 0, 1), 1.2), False)
sketch9.addGeometry(Part.Circle(Vector(60, -32.490092, 0), Vector(0, 0, 1), 1.2), False)
sketch9.addGeometry(Part.Circle(Vector(60, 24.50177, 0), Vector(0, 0, 1), 1.2), False)
sketch9.addConstraint(Sketcher.Constraint("Equal", 0, 1))
sketch9.addConstraint(Sketcher.Constraint("Equal", 1, 2))
sketch9.addConstraint(Sketcher.Constraint("Equal", 2, 3))
sketch9.addConstraint(Sketcher.Constraint("Equal", 3, 4))
sketch9.addConstraint(Sketcher.Constraint("Symmetric", 1, 3, 3, 3, -2))
sketch9.addConstraint(Sketcher.Constraint("Symmetric", 0, 3, 4, 3, -2))
sketch9.addConstraint(Sketcher.Constraint("PointOnObject", 2, 3, -2))
sketch9.addConstraint(Sketcher.Constraint("Horizontal", 1, 3, 2, 3))
sketch9.addConstraint(Sketcher.Constraint("Vertical", 0, 3, 1, 3))
sketch9.addConstraint(Sketcher.Constraint("Diameter", 0, Q("2.4 mm")))
sketch9.addConstraint(Sketcher.Constraint("DistanceX", 0, 3, -1, 1, Q("60 mm")))
sketch9.addConstraint(Sketcher.Constraint("DistanceY", -1, 1, 0, 3, Q("24.50177 mm")))
sketch9.addConstraint(Sketcher.Constraint("DistanceY", 1, 3, -1, 1, Q("32.490092 mm")))
sketch9.setExpression("Constraints[9]", "Params.sketch9_diameter")
pocket7 = body.newObject("PartDesign::Pocket", "Pocket006")
pocket7.Profile = sketch9
pocket7.setExpression("Length", "Params.pocket7_length")
pocket7.Reversed = True

# Sketch on XZ plane
sketch10 = body.newObject("Sketcher::SketchObject", "Sketch009")
sketch10.AttachmentSupport = (doc.getObject("XZ_Plane"), [""])
sketch10.MapMode = "FlatFace"
sketch10.AttachmentOffset = App.Placement(Vector(0, 0, -2), App.Rotation())
sketch10.addGeometry(Part.Circle(Vector(0, 24.50177, 0), Vector(0, 0, 1), 6.320671), False)
sketch10.addConstraint(Sketcher.Constraint("PointOnObject", 0, 3, -2))
sketch10.addConstraint(Sketcher.Constraint("Diameter", 0, Q("12.641342 mm")))
sketch10.addConstraint(Sketcher.Constraint("DistanceY", -1, 1, 0, 3, Q("24.50177 mm")))
pocket8 = body.newObject("PartDesign::Pocket", "Pocket007")
pocket8.Profile = sketch10
pocket8.setExpression("Length", "Params.pocket8_length")

# Sketch on XZ plane
sketch11 = body.newObject("Sketcher::SketchObject", "Sketch010")
sketch11.AttachmentSupport = (doc.getObject("XZ_Plane"), [""])
sketch11.MapMode = "FlatFace"
sketch11.addGeometry(Part.Circle(Vector(0, 24.50177, 0), Vector(0, 0, 1), 1.85), False)
sketch11.addConstraint(Sketcher.Constraint("PointOnObject", 0, 3, -2))
sketch11.addConstraint(Sketcher.Constraint("Diameter", 0, Q("3.7 mm")))
sketch11.addConstraint(Sketcher.Constraint("DistanceY", -1, 1, 0, 3, Q("24.50177 mm")))
sketch11.setExpression("Constraints[1]", "Params.sketch11_diameter")
pad3 = body.newObject("PartDesign::Pad", "Pad002")
pad3.Profile = sketch11
pad3.setExpression("Length", "Params.pad3_length")
pad3.Reversed = True

# Sketch on XZ plane
sketch12 = body.newObject("Sketcher::SketchObject", "Sketch011")
sketch12.AttachmentSupport = (doc.getObject("XZ_Plane"), [""])
sketch12.MapMode = "FlatFace"
sketch12.AttachmentOffset = App.Placement(Vector(0, 0, -7), App.Rotation())
sketch12.addGeometry(Part.LineSegment(Vector(-75, -37.5, 0), Vector(-75, 37.5, 0)), False)
sketch12.addGeometry(Part.ArcOfCircle(Part.Circle(Vector(-65, 37.5, 0), Vector(0, 0, 1), 10), math.radians(90), math.radians(180)), False)
sketch12.addGeometry(Part.LineSegment(Vector(-65, 47.5, 0), Vector(65, 47.5, 0)), False)
sketch12.addGeometry(Part.ArcOfCircle(Part.Circle(Vector(65, 37.5, 0), Vector(0, 0, 1), 10), math.radians(0), math.radians(90)), False)
sketch12.addGeometry(Part.LineSegment(Vector(75, 37.5, 0), Vector(75, -37.5, 0)), False)
sketch12.addGeometry(Part.ArcOfCircle(Part.Circle(Vector(65, -37.5, 0), Vector(0, 0, 1), 10), math.radians(-90), math.radians(0)), False)
sketch12.addGeometry(Part.LineSegment(Vector(65, -47.5, 0), Vector(-65, -47.5, 0)), False)
sketch12.addGeometry(Part.ArcOfCircle(Part.Circle(Vector(-65, -37.5, 0), Vector(0, 0, 1), 10), math.radians(180), math.radians(270)), False)
sketch12.addConstraint(Sketcher.Constraint("Tangent", 0, 2, 1, 2))
sketch12.addConstraint(Sketcher.Constraint("Tangent", 1, 1, 2, 1))
sketch12.addConstraint(Sketcher.Constraint("Tangent", 2, 2, 3, 2))
sketch12.addConstraint(Sketcher.Constraint("Tangent", 3, 1, 4, 1))
sketch12.addConstraint(Sketcher.Constraint("Tangent", 4, 2, 5, 2))
sketch12.addConstraint(Sketcher.Constraint("Tangent", 5, 1, 6, 1))
sketch12.addConstraint(Sketcher.Constraint("Tangent", 6, 2, 7, 2))
sketch12.addConstraint(Sketcher.Constraint("Tangent", 7, 1, 0, 1))
sketch12.addConstraint(Sketcher.Constraint("Vertical", 0))
sketch12.addConstraint(Sketcher.Constraint("Horizontal", 2))
sketch12.addConstraint(Sketcher.Constraint("Vertical", 4))
sketch12.addConstraint(Sketcher.Constraint("Horizontal", 6))
sketch12.addConstraint(Sketcher.Constraint("Equal", 1, 3))
sketch12.addConstraint(Sketcher.Constraint("Equal", 3, 5))
sketch12.addConstraint(Sketcher.Constraint("Equal", 5, 7))
sketch12.addConstraint(Sketcher.Constraint("Symmetric", 1, 3, 5, 3, -1, 1))
sketch12.addConstraint(Sketcher.Constraint("Radius", 1, Q("10 mm")))
sketch12.addConstraint(Sketcher.Constraint("DistanceX", 2, 1, 2, 2, Q("130 mm")))
sketch12.addConstraint(Sketcher.Constraint("DistanceY", 0, 1, 0, 2, Q("75 mm")))
sketch12.setExpression("Constraints[16]", "Params.sketch12_radius")
sketch12.setExpression("Constraints[17]", "Params.sketch12_width")
sketch12.setExpression("Constraints[18]", "Params.sketch12_height")
pocket9 = body.newObject("PartDesign::Pocket", "Pocket008")
pocket9.Profile = sketch12
pocket9.setExpression("Length", "Params.pocket9_length")

doc.recompute()
